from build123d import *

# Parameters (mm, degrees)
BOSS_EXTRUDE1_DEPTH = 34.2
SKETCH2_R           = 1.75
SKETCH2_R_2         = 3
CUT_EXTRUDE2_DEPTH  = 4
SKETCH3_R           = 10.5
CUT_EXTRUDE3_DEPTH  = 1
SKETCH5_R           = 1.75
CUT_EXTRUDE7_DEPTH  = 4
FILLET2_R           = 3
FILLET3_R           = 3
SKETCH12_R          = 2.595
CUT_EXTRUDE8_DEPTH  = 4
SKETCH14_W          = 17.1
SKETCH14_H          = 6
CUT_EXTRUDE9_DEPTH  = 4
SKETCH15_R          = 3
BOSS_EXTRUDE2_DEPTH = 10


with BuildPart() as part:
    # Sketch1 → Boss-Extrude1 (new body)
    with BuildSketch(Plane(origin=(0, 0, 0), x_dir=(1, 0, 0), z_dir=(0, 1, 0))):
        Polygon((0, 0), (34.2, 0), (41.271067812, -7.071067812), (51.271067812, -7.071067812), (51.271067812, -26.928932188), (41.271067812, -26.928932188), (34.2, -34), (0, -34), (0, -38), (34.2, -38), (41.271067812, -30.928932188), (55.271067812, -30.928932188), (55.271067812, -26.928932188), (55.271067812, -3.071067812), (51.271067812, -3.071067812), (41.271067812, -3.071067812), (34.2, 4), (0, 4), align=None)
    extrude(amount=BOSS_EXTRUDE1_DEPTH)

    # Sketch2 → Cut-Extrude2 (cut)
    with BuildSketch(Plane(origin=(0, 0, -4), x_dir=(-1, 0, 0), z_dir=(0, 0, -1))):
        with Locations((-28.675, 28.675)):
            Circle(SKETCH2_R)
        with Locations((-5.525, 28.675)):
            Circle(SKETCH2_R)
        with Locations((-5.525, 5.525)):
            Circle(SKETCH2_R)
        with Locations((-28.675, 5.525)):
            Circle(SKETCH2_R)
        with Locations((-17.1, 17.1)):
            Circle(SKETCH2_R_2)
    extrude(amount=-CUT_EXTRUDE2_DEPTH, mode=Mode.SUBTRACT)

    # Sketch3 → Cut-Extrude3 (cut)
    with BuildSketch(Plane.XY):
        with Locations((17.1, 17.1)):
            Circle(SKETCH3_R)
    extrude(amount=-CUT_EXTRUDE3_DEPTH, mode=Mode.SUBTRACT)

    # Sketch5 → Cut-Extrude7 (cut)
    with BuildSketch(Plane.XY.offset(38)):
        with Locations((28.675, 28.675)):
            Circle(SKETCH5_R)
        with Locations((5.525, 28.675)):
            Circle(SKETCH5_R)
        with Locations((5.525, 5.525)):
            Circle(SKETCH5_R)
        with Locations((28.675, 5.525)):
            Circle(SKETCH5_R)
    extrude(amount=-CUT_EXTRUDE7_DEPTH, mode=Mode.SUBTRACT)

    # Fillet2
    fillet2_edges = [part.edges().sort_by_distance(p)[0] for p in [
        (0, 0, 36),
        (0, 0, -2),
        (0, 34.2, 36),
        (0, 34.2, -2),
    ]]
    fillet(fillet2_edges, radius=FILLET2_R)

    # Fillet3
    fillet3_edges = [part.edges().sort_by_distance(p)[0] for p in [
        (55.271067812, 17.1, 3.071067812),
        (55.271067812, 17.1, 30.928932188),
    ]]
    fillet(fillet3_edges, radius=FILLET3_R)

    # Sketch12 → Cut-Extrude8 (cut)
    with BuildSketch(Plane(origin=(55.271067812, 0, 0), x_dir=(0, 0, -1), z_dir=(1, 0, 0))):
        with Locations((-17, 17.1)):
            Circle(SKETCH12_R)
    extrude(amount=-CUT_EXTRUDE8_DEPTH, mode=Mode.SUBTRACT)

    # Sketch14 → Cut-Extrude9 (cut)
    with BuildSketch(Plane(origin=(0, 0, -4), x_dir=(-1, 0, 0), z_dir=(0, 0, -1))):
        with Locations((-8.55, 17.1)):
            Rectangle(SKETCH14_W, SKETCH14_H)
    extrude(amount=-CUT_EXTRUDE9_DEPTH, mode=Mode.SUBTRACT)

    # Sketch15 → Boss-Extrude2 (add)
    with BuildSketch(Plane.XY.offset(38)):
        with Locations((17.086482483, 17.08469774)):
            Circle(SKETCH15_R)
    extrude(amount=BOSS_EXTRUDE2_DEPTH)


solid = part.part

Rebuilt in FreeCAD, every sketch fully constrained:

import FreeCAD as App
import Part
import Sketcher


def edges_at(feature, points):
    """Names of the edges that pass closest to the given points."""
    edges = feature.Shape.Edges
    near = lambda p: min(range(len(edges)), key=lambda i: edges[i].distToShape(Part.Vertex(*p))[0])
    return sorted({f"Edge{near(p) + 1}" for p in points})


def add_polygon(sketch, points):
    """Adds a closed chain of lines whose ends are joined by coincident constraints."""
    first, n = sketch.GeometryCount, len(points)
    for a, b in zip(points, points[1:] + points[:1]):
        sketch.addGeometry(Part.LineSegment(App.Vector(*a, 0), App.Vector(*b, 0)), False)
    for i in range(n):
        sketch.addConstraint(Sketcher.Constraint("Coincident", first + i, 2, first + (i + 1) % n, 1))

doc = App.newDocument("Part")
body = doc.addObject("PartDesign::Body", "Body")

sketch1 = body.newObject("Sketcher::SketchObject", "Sketch")
sketch1.AttachmentSupport = (doc.getObject("XZ_Plane"), [""])
sketch1.MapMode = "FlatFace"
add_polygon(sketch1, [(0, 0), (34.2, 0), (41.3, 7.1), (51.3, 7.1), (51.3, 26.9), (41.3, 26.9), (34.2, 34), (0, 34), (0, 38), (34.2, 38), (41.3, 30.9), (55.3, 30.9), (55.3, 3.1), (41.3, 3.1), (34.2, -4), (0, -4)])
sketch1.addConstraint(Sketcher.Constraint("Horizontal", 0))
sketch1.addConstraint(Sketcher.Constraint("Horizontal", 2))
sketch1.addConstraint(Sketcher.Constraint("Vertical", 3))
sketch1.addConstraint(Sketcher.Constraint("Horizontal", 4))
sketch1.addConstraint(Sketcher.Constraint("Horizontal", 6))
sketch1.addConstraint(Sketcher.Constraint("Vertical", 7))
sketch1.addConstraint(Sketcher.Constraint("Horizontal", 8))
sketch1.addConstraint(Sketcher.Constraint("Horizontal", 10))
sketch1.addConstraint(Sketcher.Constraint("Vertical", 11))
sketch1.addConstraint(Sketcher.Constraint("Horizontal", 12))
sketch1.addConstraint(Sketcher.Constraint("Horizontal", 14))
sketch1.addConstraint(Sketcher.Constraint("Vertical", 15))
sketch1.addConstraint(Sketcher.Constraint("Coincident", 15, 2, -1, 1))
sketch1.addConstraint(Sketcher.Constraint("PointOnObject", 6, 2, -2))
sketch1.addConstraint(Sketcher.Constraint("Perpendicular", 1, 5))
sketch1.addConstraint(Sketcher.Constraint("Parallel", 5, 9))
sketch1.addConstraint(Sketcher.Constraint("Perpendicular", 9, 13))
sketch1.addConstraint(Sketcher.Constraint("Vertical", 1, 2, 4, 2))
sketch1.addConstraint(Sketcher.Constraint("Vertical", 0, 2, 5, 2))
sketch1.addConstraint(Sketcher.Constraint("Vertical", 5, 2, 8, 2))
sketch1.addConstraint(Sketcher.Constraint("Vertical", 4, 2, 9, 2))
sketch1.addConstraint(Sketcher.Constraint("Vertical", 9, 2, 12, 2))
sketch1.addConstraint(Sketcher.Constraint("Vertical", 8, 2, 13, 2))
sketch1.addConstraint(Sketcher.Constraint("Equal", 7, 15))
sketch1.addConstraint(Sketcher.Constraint("Equal", 1, 5))
sketch1.addConstraint(Sketcher.Constraint("DistanceX", 2, 1, 2, 2, 10.0))
sketch1.addConstraint(Sketcher.Constraint("DistanceX", 10, 1, 10, 2, 14.0))
sketch1.addConstraint(Sketcher.Constraint("DistanceY", 7, 1, 7, 2, 4.0))
sketch1.addConstraint(Sketcher.Constraint("Distance", 1, 10.0))
sketch1.addConstraint(Sketcher.Constraint("DistanceX", 0, 1, 0, 2, 34.2))
sketch1.addConstraint(Sketcher.Constraint("DistanceY", -1, 1, 5, 2, 34.0))
pad1 = body.newObject("PartDesign::Pad", "Pad")
pad1.Profile = sketch1
pad1.Length = 34.2
pad1.Reversed = True

sketch2 = body.newObject("Sketcher::SketchObject", "Sketch001")
sketch2.AttachmentSupport = (doc.getObject("XY_Plane"), [""])
sketch2.MapMode = "FlatFace"
sketch2.AttachmentOffset = App.Placement(App.Vector(0, 0, -4), App.Rotation())
sketch2.addGeometry(Part.Circle(App.Vector(28.7, 28.7, 0), App.Vector(0, 0, 1), 1.8), False)
sketch2.addGeometry(Part.Circle(App.Vector(5.5, 28.7, 0), App.Vector(0, 0, 1), 1.8), False)
sketch2.addGeometry(Part.Circle(App.Vector(5.5, 5.5, 0), App.Vector(0, 0, 1), 1.8), False)
sketch2.addGeometry(Part.Circle(App.Vector(28.7, 5.5, 0), App.Vector(0, 0, 1), 1.8), False)
sketch2.addGeometry(Part.Circle(App.Vector(17.1, 17.1, 0), App.Vector(0, 0, 1), 3), False)
sketch2.addConstraint(Sketcher.Constraint("Equal", 0, 1))
sketch2.addConstraint(Sketcher.Constraint("Equal", 1, 2))
sketch2.addConstraint(Sketcher.Constraint("Equal", 2, 3))
sketch2.addConstraint(Sketcher.Constraint("Horizontal", 0, 3, 1, 3))
sketch2.addConstraint(Sketcher.Constraint("Horizontal", 2, 3, 3, 3))
sketch2.addConstraint(Sketcher.Constraint("Vertical", 1, 3, 2, 3))
sketch2.addConstraint(Sketcher.Constraint("Vertical", 0, 3, 3, 3))
sketch2.addConstraint(Sketcher.Constraint("Diameter", 4, 6.0))
sketch2.addConstraint(Sketcher.Constraint("Diameter", 0, 3.5))
sketch2.addConstraint(Sketcher.Constraint("DistanceX", -1, 1, 4, 3, 17.1))
sketch2.addConstraint(Sketcher.Constraint("DistanceY", -1, 1, 4, 3, 17.1))
sketch2.addConstraint(Sketcher.Constraint("DistanceX", 1, 3, 0, 3, 23.15))
sketch2.addConstraint(Sketcher.Constraint("DistanceY", 2, 3, 1, 3, 23.15))
sketch2.addConstraint(Sketcher.Constraint("DistanceX", -1, 1, 0, 3, 28.675))
sketch2.addConstraint(Sketcher.Constraint("DistanceY", -1, 1, 0, 3, 28.675))
pocket1 = body.newObject("PartDesign::Pocket", "Pocket")
pocket1.Profile = sketch2
pocket1.Length = 4
pocket1.Reversed = True

sketch3 = body.newObject("Sketcher::SketchObject", "Sketch002")
sketch3.AttachmentSupport = (doc.getObject("XY_Plane"), [""])
sketch3.MapMode = "FlatFace"
sketch3.addGeometry(Part.Circle(App.Vector(17, 17, 0), App.Vector(0, 0, 1), 10), False)
sketch3.addConstraint(Sketcher.Constraint("Diameter", 0, 21.0))
sketch3.addConstraint(Sketcher.Constraint("DistanceX", -1, 1, 0, 3, 17.1))
sketch3.addConstraint(Sketcher.Constraint("DistanceY", -1, 1, 0, 3, 17.1))
pocket2 = body.newObject("PartDesign::Pocket", "Pocket001")
pocket2.Profile = sketch3
pocket2.Length = 1

sketch4 = body.newObject("Sketcher::SketchObject", "Sketch003")
sketch4.AttachmentSupport = (doc.getObject("XY_Plane"), [""])
sketch4.MapMode = "FlatFace"
sketch4.AttachmentOffset = App.Placement(App.Vector(0, 0, 38), App.Rotation())
sketch4.addGeometry(Part.Circle(App.Vector(28.7, 28.7, 0), App.Vector(0, 0, 1), 1.8), False)
sketch4.addGeometry(Part.Circle(App.Vector(5.5, 28.7, 0), App.Vector(0, 0, 1), 1.8), False)
sketch4.addGeometry(Part.Circle(App.Vector(5.5, 5.5, 0), App.Vector(0, 0, 1), 1.8), False)
sketch4.addGeometry(Part.Circle(App.Vector(28.7, 5.5, 0), App.Vector(0, 0, 1), 1.8), False)
sketch4.addConstraint(Sketcher.Constraint("Equal", 0, 1))
sketch4.addConstraint(Sketcher.Constraint("Equal", 1, 2))
sketch4.addConstraint(Sketcher.Constraint("Equal", 2, 3))
sketch4.addConstraint(Sketcher.Constraint("Horizontal", 0, 3, 1, 3))
sketch4.addConstraint(Sketcher.Constraint("Horizontal", 2, 3, 3, 3))
sketch4.addConstraint(Sketcher.Constraint("Vertical", 1, 3, 2, 3))
sketch4.addConstraint(Sketcher.Constraint("Vertical", 0, 3, 3, 3))
sketch4.addConstraint(Sketcher.Constraint("Diameter", 0, 3.5))
sketch4.addConstraint(Sketcher.Constraint("DistanceX", 1, 3, 0, 3, 23.15))
sketch4.addConstraint(Sketcher.Constraint("DistanceY", 2, 3, 1, 3, 23.15))
sketch4.addConstraint(Sketcher.Constraint("DistanceX", -1, 1, 0, 3, 28.675))
sketch4.addConstraint(Sketcher.Constraint("DistanceY", -1, 1, 0, 3, 28.675))
pocket3 = body.newObject("PartDesign::Pocket", "Pocket002")
pocket3.Profile = sketch4
pocket3.Length = 4
doc.recompute()

fillet = body.newObject("PartDesign::Fillet", "Fillet")
fillet.Base = (pocket3, edges_at(pocket3, [
    (0, 0, 36),
    (0, 0, -2),
    (0, 34.2, 36),
    (0, 34.2, -2),
]))
fillet.Radius = 3
doc.recompute()

fillet2 = body.newObject("PartDesign::Fillet", "Fillet001")
fillet2.Base = (fillet, edges_at(fillet, [(55.271, 17.1, 3.071), (55.271, 17.1, 30.929)]))
fillet2.Radius = 3

sketch5 = body.newObject("Sketcher::SketchObject", "Sketch004")
sketch5.AttachmentSupport = (doc.getObject("YZ_Plane"), [""])
sketch5.MapMode = "FlatFace"
sketch5.AttachmentOffset = App.Placement(App.Vector(0, 0, 55.271068), App.Rotation())
sketch5.addGeometry(Part.Circle(App.Vector(17.1, 17, 0), App.Vector(0, 0, 1), 2.6), False)
sketch5.addConstraint(Sketcher.Constraint("Diameter", 0, 5.19))
sketch5.addConstraint(Sketcher.Constraint("DistanceY", -1, 1, 0, 3, 17.0))
sketch5.addConstraint(Sketcher.Constraint("DistanceX", -1, 1, 0, 3, 17.1))
pocket4 = body.newObject("PartDesign::Pocket", "Pocket003")
pocket4.Profile = sketch5
pocket4.Length = 4

sketch6 = body.newObject("Sketcher::SketchObject", "Sketch005")
sketch6.AttachmentSupport = (doc.getObject("XY_Plane"), [""])
sketch6.MapMode = "FlatFace"
sketch6.AttachmentOffset = App.Placement(App.Vector(0, 0, -4), App.Rotation())
add_polygon(sketch6, [(17, 20), (17, 14), (0, 14), (0, 20)])
sketch6.addConstraint(Sketcher.Constraint("Vertical", 0))
sketch6.addConstraint(Sketcher.Constraint("Horizontal", 1))
sketch6.addConstraint(Sketcher.Constraint("Vertical", 2))
sketch6.addConstraint(Sketcher.Constraint("Horizontal", 3))
sketch6.addConstraint(Sketcher.Constraint("PointOnObject", 1, 2, -2))
sketch6.addConstraint(Sketcher.Constraint("DistanceY", 0, 2, 0, 1, 6.0))
sketch6.addConstraint(Sketcher.Constraint("DistanceX", 1, 2, 1, 1, 17.1))
sketch6.addConstraint(Sketcher.Constraint("DistanceY", -1, 1, 0, 2, 14.1))
pocket5 = body.newObject("PartDesign::Pocket", "Pocket004")
pocket5.Profile = sketch6
pocket5.Length = 4
pocket5.Reversed = True

sketch7 = body.newObject("Sketcher::SketchObject", "Sketch006")
sketch7.AttachmentSupport = (doc.getObject("XY_Plane"), [""])
sketch7.MapMode = "FlatFace"
sketch7.AttachmentOffset = App.Placement(App.Vector(0, 0, 38), App.Rotation())
sketch7.addGeometry(Part.Circle(App.Vector(17.1, 17.1, 0), App.Vector(0, 0, 1), 3), False)
sketch7.addConstraint(Sketcher.Constraint("Diameter", 0, 6.0))
sketch7.addConstraint(Sketcher.Constraint("DistanceX", -1, 1, 0, 3, 17.086482))
sketch7.addConstraint(Sketcher.Constraint("DistanceY", -1, 1, 0, 3, 17.084698))
pad2 = body.newObject("PartDesign::Pad", "Pad001")
pad2.Profile = sketch7
pad2.Length = 10

doc.recompute()
